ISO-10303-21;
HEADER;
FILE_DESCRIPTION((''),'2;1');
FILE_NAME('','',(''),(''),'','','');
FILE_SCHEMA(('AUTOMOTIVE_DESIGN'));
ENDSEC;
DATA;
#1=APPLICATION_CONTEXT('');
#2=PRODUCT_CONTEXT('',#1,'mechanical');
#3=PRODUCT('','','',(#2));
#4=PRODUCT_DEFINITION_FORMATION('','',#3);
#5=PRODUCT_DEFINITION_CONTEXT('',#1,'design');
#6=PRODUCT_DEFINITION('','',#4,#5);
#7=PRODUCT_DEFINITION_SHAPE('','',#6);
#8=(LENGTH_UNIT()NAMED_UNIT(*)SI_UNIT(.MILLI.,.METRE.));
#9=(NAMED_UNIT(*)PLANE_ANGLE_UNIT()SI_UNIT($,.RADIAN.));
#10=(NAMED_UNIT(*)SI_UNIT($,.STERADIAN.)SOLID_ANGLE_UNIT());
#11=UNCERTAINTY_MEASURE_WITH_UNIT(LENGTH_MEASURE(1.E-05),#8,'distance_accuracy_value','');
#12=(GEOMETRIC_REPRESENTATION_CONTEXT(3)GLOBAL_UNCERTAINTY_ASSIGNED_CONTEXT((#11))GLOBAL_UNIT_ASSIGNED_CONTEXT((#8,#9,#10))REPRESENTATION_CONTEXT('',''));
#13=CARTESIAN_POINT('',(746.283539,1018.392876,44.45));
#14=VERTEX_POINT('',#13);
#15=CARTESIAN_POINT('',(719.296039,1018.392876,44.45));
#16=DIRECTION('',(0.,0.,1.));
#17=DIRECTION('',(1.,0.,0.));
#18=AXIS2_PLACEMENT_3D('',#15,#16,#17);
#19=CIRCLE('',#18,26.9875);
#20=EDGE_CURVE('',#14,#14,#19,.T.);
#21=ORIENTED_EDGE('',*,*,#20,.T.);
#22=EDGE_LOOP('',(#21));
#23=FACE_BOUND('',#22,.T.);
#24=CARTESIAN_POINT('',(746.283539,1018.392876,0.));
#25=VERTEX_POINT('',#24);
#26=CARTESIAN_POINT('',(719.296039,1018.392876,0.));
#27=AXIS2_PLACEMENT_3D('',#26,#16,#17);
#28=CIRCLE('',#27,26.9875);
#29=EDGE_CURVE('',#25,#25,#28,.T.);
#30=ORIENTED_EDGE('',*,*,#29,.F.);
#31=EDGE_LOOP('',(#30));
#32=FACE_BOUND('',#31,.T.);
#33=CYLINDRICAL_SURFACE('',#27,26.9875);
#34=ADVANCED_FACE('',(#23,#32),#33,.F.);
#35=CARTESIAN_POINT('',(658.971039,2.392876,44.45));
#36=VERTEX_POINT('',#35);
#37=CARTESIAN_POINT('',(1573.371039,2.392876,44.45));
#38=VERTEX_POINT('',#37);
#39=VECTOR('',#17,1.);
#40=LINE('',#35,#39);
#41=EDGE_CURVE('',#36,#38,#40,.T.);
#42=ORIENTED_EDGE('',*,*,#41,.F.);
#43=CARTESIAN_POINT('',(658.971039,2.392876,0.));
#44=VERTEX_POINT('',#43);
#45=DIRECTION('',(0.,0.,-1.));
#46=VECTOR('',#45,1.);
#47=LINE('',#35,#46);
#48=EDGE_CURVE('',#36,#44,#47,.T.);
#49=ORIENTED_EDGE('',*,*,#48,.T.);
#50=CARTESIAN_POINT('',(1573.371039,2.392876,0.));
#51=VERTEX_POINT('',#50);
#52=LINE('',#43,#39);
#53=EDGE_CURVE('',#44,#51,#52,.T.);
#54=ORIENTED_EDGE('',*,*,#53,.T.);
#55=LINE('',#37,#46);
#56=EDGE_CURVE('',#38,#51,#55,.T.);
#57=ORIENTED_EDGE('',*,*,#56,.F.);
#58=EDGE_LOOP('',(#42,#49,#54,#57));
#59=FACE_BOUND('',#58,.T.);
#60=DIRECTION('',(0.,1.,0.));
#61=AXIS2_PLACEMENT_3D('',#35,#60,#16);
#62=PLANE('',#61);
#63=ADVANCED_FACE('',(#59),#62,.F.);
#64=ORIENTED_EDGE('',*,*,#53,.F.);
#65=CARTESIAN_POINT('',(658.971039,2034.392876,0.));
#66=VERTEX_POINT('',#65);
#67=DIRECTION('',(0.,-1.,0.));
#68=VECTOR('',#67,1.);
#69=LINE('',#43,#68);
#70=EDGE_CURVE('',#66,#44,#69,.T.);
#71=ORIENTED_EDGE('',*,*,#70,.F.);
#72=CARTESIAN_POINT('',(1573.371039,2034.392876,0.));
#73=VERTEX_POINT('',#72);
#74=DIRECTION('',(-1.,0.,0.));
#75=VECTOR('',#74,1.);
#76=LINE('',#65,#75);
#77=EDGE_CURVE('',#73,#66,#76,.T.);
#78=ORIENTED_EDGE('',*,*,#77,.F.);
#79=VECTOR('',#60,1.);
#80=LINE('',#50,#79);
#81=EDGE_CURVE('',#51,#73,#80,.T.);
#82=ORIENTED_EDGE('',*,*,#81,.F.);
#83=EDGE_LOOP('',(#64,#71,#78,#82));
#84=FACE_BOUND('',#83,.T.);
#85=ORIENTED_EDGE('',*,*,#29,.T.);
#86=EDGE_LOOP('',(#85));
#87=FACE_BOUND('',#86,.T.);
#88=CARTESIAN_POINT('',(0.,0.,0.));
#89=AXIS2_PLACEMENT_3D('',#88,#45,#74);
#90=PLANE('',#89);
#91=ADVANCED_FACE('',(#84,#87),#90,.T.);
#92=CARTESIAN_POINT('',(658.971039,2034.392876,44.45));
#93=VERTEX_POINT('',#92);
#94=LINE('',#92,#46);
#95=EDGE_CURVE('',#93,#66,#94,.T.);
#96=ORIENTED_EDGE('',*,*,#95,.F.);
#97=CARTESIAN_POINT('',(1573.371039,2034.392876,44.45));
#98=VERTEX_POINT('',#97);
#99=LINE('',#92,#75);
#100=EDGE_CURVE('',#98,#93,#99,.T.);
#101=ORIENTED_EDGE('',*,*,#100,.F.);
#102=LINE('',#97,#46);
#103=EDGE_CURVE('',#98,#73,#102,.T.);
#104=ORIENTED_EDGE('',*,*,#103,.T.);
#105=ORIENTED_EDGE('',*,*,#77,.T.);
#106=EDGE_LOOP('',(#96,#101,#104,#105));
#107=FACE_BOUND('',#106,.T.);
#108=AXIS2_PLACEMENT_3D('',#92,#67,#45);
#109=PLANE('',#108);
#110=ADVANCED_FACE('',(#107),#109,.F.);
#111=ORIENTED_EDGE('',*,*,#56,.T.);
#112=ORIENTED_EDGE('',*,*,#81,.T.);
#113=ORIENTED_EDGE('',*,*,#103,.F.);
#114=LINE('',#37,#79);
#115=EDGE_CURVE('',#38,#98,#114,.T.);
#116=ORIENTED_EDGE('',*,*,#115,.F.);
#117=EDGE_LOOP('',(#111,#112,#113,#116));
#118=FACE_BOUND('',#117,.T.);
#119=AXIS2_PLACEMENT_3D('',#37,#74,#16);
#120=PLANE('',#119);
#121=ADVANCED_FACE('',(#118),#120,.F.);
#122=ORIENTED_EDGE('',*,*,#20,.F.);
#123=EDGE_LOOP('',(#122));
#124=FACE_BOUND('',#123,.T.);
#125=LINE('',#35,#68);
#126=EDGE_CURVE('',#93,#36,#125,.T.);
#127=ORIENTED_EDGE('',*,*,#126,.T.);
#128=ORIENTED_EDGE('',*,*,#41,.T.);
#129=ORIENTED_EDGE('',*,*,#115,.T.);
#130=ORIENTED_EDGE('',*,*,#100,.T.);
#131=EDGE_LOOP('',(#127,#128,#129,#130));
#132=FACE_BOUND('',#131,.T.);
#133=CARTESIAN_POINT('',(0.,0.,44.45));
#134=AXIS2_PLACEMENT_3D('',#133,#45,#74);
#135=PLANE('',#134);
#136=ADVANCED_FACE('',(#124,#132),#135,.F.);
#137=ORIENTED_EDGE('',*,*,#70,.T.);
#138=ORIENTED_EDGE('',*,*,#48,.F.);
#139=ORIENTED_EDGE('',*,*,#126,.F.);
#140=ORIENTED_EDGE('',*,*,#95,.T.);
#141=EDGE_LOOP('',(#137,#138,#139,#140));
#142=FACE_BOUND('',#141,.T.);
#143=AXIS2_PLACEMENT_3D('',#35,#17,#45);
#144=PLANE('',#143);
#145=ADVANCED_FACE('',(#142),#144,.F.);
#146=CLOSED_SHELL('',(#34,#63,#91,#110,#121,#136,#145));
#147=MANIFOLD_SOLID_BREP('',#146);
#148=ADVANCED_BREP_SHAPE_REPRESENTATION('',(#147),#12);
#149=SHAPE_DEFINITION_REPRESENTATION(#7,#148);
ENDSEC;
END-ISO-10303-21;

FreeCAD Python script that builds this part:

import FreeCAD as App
import Part
import Sketcher
from FreeCAD import Vector
Q = App.Units.Quantity


def add_polygon(sketch, points):
    """Adds a closed chain of lines whose ends are joined by coincident constraints."""
    first, n = sketch.GeometryCount, len(points)
    for a, b in zip(points, points[1:] + points[:1]):
        sketch.addGeometry(Part.LineSegment(App.Vector(*a, 0), App.Vector(*b, 0)), False)
    for i in range(n):
        sketch.addConstraint(Sketcher.Constraint("Coincident", first + i, 2, first + (i + 1) % n, 1))

doc = App.newDocument("Part")
body = doc.addObject("PartDesign::Body", "Body")

sketch1 = doc.addObject("Sketcher::SketchObject", "Sketch")
body.addObject(sketch1)
sketch1.AttachmentSupport = (doc.XY_Plane, [""])
sketch1.MapMode = "FlatFace"
add_polygon(sketch1, [(658.971039, 2034.392876), (658.971039, 2.392876), (1573.371039, 2.392876), (1573.371039, 2034.392876)])
sketch1.addConstraint([
    Sketcher.Constraint("Vertical", 0),
    Sketcher.Constraint("Horizontal", 1),
    Sketcher.Constraint("Vertical", 2),
    Sketcher.Constraint("Horizontal", 3),
    Sketcher.Constraint("DistanceX", 1, 1, 1, 2, Q("36 in")),
    Sketcher.Constraint("DistanceY", 0, 2, 0, 1, Q("80 in")),
    Sketcher.Constraint("DistanceX", -1, 1, 0, 2, 658.971039),
    Sketcher.Constraint("DistanceY", -1, 1, 0, 2, 2.392876),
])
pad1 = doc.addObject("PartDesign::Pad", "Pad")
body.addObject(pad1)
pad1.Profile = sketch1
pad1.Length = Q("1.75 in")

sketch2 = doc.addObject("Sketcher::SketchObject", "Sketch001")
body.addObject(sketch2)
sketch2.AttachmentSupport = (doc.XY_Plane, [""])
sketch2.MapMode = "FlatFace"
sketch2.AttachmentOffset = App.Placement(Vector(0, 0, 1.75 * 25.4), App.Rotation())
sketch2.addGeometry(Part.Circle(Vector(719.296039, 1018.392876, 0), Vector(0, 0, 1), 26.9875), False)
sketch2.addConstraint([
    Sketcher.Constraint("Diameter", 0, Q("2.125 in")),
    Sketcher.Constraint("DistanceX", -1, 1, 0, 3, 719.296039),
    Sketcher.Constraint("DistanceY", -1, 1, 0, 3, 1018.392876),
])
pocket1 = doc.addObject("PartDesign::Pocket", "Pocket")
body.addObject(pocket1)
pocket1.Profile = sketch2
pocket1.Length = Q("1.75 in")

doc.recompute()
